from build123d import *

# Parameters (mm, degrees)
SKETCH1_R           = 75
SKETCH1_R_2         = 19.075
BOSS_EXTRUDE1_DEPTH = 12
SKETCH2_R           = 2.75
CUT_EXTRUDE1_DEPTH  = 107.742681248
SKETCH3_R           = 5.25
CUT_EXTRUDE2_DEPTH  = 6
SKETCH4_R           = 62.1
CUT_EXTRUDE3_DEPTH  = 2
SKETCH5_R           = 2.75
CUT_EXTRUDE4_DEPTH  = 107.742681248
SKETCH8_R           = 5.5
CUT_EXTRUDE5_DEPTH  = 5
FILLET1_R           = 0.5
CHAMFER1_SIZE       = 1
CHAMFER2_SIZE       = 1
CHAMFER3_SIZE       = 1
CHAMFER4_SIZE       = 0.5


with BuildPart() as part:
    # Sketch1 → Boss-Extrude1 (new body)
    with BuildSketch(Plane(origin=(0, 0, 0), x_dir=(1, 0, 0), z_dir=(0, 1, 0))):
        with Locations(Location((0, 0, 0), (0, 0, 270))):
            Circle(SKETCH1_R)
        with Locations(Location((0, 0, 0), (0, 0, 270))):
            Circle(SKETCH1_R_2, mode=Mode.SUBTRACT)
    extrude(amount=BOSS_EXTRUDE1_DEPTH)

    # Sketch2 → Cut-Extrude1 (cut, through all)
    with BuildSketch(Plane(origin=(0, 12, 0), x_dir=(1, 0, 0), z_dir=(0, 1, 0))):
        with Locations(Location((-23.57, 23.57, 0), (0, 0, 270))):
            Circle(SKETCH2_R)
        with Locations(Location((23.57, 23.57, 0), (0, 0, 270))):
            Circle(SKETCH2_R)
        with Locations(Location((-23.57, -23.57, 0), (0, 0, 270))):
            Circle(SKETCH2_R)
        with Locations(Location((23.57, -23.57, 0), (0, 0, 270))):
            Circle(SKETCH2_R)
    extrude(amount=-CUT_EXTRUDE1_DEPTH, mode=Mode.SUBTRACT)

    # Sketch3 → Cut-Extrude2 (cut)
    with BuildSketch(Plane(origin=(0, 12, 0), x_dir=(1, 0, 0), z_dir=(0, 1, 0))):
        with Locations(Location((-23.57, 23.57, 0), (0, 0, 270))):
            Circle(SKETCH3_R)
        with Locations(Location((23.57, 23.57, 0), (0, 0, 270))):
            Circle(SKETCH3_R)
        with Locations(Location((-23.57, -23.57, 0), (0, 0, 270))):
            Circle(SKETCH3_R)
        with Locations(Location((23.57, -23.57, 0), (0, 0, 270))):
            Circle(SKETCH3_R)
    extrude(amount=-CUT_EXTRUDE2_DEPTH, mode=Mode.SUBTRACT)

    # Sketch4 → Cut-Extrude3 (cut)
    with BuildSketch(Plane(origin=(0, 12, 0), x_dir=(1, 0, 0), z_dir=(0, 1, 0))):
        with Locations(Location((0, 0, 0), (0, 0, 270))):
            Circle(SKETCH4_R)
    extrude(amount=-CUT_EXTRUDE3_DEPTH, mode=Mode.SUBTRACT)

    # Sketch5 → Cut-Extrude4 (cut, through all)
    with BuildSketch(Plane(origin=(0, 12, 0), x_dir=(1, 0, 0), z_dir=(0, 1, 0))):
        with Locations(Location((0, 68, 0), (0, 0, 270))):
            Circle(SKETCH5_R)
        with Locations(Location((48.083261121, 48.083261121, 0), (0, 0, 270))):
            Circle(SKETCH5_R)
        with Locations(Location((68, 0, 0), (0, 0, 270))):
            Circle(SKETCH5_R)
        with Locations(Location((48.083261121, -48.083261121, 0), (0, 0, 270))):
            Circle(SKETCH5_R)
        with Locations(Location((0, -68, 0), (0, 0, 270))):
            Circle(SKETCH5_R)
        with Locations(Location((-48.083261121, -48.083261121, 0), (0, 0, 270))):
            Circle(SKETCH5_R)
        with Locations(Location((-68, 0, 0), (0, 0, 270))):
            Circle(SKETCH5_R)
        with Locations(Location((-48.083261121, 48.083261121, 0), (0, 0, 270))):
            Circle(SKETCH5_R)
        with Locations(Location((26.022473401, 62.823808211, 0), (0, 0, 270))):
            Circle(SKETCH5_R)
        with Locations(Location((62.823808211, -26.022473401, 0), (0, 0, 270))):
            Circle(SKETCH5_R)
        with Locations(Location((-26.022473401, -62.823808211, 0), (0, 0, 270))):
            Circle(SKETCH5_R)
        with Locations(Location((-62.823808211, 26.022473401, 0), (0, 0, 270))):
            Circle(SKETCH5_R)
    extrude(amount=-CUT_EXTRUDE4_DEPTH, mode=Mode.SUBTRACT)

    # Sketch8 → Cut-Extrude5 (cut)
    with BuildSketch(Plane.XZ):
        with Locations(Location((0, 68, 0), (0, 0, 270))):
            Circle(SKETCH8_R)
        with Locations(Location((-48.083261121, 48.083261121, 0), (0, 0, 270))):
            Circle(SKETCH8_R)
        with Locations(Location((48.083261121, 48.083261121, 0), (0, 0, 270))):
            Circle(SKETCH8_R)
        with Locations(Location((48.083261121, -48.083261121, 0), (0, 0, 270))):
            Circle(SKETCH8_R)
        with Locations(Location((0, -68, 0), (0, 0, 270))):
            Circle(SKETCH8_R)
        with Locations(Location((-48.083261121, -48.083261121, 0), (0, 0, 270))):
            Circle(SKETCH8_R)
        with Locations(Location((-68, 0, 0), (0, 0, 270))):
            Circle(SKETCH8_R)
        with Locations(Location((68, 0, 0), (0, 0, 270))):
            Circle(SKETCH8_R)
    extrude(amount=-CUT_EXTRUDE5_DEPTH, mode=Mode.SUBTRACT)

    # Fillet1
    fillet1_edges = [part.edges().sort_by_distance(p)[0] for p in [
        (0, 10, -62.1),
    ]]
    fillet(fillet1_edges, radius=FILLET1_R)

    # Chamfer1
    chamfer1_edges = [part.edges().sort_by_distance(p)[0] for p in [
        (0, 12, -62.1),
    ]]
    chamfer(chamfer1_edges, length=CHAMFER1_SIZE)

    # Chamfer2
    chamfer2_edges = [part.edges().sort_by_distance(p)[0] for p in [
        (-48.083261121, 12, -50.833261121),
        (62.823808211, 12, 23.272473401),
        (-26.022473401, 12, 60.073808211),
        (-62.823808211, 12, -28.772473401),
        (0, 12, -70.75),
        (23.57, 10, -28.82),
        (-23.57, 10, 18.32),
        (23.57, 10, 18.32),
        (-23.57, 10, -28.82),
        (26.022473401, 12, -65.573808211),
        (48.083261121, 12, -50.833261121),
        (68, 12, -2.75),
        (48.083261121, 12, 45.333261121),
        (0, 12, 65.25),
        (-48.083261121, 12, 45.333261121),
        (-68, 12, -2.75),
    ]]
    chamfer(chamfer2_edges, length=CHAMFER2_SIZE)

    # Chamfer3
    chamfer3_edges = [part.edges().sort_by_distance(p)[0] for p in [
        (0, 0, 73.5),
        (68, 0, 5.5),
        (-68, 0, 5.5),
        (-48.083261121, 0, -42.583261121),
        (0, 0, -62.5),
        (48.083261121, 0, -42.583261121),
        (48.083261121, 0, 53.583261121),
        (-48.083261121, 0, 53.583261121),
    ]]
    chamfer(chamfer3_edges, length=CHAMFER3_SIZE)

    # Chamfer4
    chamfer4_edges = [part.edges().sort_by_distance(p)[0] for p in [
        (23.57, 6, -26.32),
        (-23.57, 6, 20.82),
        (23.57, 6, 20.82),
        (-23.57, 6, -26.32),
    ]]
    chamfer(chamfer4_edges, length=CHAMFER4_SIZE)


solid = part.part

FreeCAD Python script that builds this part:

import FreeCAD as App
import Part
import Sketcher
from FreeCAD import Vector


def edges_at(feature, points):
    """Names of the edges that pass closest to the given points."""
    edges = feature.Shape.Edges
    near = lambda p: min(range(len(edges)), key=lambda i: edges[i].distToShape(Part.Vertex(*p))[0])
    return sorted({f"Edge{near(p) + 1}" for p in points})

doc = App.newDocument("Part")
body = doc.addObject("PartDesign::Body", "Body")

# Sketch on XZ plane
sketch1 = body.newObject("Sketcher::SketchObject", "Sketch")
sketch1.AttachmentSupport = (doc.getObject("XZ_Plane"), [""])
sketch1.MapMode = "FlatFace"
sketch1.addGeometry([
    Part.Circle(Vector(0, 0, 0), Vector(0, 0, 1), 75),
    Part.Circle(Vector(0, 0, 0), Vector(0, 0, 1), 19),
], False)
sketch1.addConstraint([
    Sketcher.Constraint("Coincident", 0, 3, -1, 1),
    Sketcher.Constraint("Coincident", 1, 3, -1, 1),
    Sketcher.Constraint("Diameter", 0, 150.0),
    Sketcher.Constraint("Diameter", 1, 38.15),
])
pad1 = body.newObject("PartDesign::Pad", "Pad")
pad1.Profile = sketch1
pad1.Length = 12
pad1.Reversed = True

# Sketch on XZ plane
sketch2 = body.newObject("Sketcher::SketchObject", "Sketch001")
sketch2.AttachmentSupport = (doc.getObject("XZ_Plane"), [""])
sketch2.MapMode = "FlatFace"
sketch2.AttachmentOffset = App.Placement(Vector(0, 0, -12), App.Rotation())
sketch2.addGeometry([
    Part.Circle(Vector(-23.6, -23.6, 0), Vector(0, 0, 1), 2.8),
    Part.Circle(Vector(23.6, -23.6, 0), Vector(0, 0, 1), 2.8),
    Part.Circle(Vector(-23.6, 23.6, 0), Vector(0, 0, 1), 2.8),
    Part.Circle(Vector(23.6, 23.6, 0), Vector(0, 0, 1), 2.8),
], False)
sketch2.addConstraint([
    Sketcher.Constraint("Equal", 0, 1),
    Sketcher.Constraint("Equal", 1, 2),
    Sketcher.Constraint("Equal", 2, 3),
    Sketcher.Constraint("Symmetric", 1, 3, 2, 3, -1, 1),
    Sketcher.Constraint("Symmetric", 0, 3, 3, 3, -1, 1),
    Sketcher.Constraint("Symmetric", 0, 3, 1, 3, -2),
    Sketcher.Constraint("Diameter", 0, 5.5),
    Sketcher.Constraint("DistanceX", 0, 3, -1, 1, 23.57),
    Sketcher.Constraint("DistanceY", 0, 3, -1, 1, 23.57),
])
pocket1 = body.newObject("PartDesign::Pocket", "Pocket")
pocket1.Profile = sketch2
pocket1.Type = "ThroughAll"
pocket1.Reversed = True

# Sketch on XZ plane
sketch3 = body.newObject("Sketcher::SketchObject", "Sketch002")
sketch3.AttachmentSupport = (doc.getObject("XZ_Plane"), [""])
sketch3.MapMode = "FlatFace"
sketch3.AttachmentOffset = App.Placement(Vector(0, 0, -12), App.Rotation())
sketch3.addGeometry([
    Part.Circle(Vector(-24, -24, 0), Vector(0, 0, 1), 5),
    Part.Circle(Vector(24, -24, 0), Vector(0, 0, 1), 5),
    Part.Circle(Vector(-24, 24, 0), Vector(0, 0, 1), 5),
    Part.Circle(Vector(24, 24, 0), Vector(0, 0, 1), 5),
], False)
sketch3.addConstraint([
    Sketcher.Constraint("Equal", 0, 1),
    Sketcher.Constraint("Equal", 1, 2),
    Sketcher.Constraint("Equal", 2, 3),
    Sketcher.Constraint("Symmetric", 1, 3, 2, 3, -1, 1),
    Sketcher.Constraint("Symmetric", 0, 3, 3, 3, -1, 1),
    Sketcher.Constraint("Symmetric", 0, 3, 1, 3, -2),
    Sketcher.Constraint("Diameter", 0, 10.5),
    Sketcher.Constraint("DistanceX", 0, 3, -1, 1, 23.57),
    Sketcher.Constraint("DistanceY", 0, 3, -1, 1, 23.57),
])
pocket2 = body.newObject("PartDesign::Pocket", "Pocket001")
pocket2.Profile = sketch3
pocket2.Length = 6
pocket2.Reversed = True

# Sketch on XZ plane
sketch4 = body.newObject("Sketcher::SketchObject", "Sketch003")
sketch4.AttachmentSupport = (doc.getObject("XZ_Plane"), [""])
sketch4.MapMode = "FlatFace"
sketch4.AttachmentOffset = App.Placement(Vector(0, 0, -12), App.Rotation())
sketch4.addGeometry(Part.Circle(Vector(0, 0, 0), Vector(0, 0, 1), 62), False)
sketch4.addConstraint([
    Sketcher.Constraint("Coincident", 0, 3, -1, 1),
    Sketcher.Constraint("Diameter", 0, 124.2),
])
pocket3 = body.newObject("PartDesign::Pocket", "Pocket002")
pocket3.Profile = sketch4
pocket3.Length = 2
pocket3.Reversed = True

# Sketch on XZ plane
sketch5 = body.newObject("Sketcher::SketchObject", "Sketch004")
sketch5.AttachmentSupport = (doc.getObject("XZ_Plane"), [""])
sketch5.MapMode = "FlatFace"
sketch5.AttachmentOffset = App.Placement(Vector(0, 0, -12), App.Rotation())
sketch5.addGeometry([
    Part.Circle(Vector(0, -68, 0), Vector(0, 0, 1), 2.8),  # 0
    Part.Circle(Vector(48.1, -48.1, 0), Vector(0, 0, 1), 2.8),  # 1
    Part.Circle(Vector(68, 0, 0), Vector(0, 0, 1), 2.8),  # 2
    Part.Circle(Vector(48.1, 48.1, 0), Vector(0, 0, 1), 2.8),  # 3
    Part.Circle(Vector(0, 68, 0), Vector(0, 0, 1), 2.8),  # 4
    Part.Circle(Vector(-48.1, 48.1, 0), Vector(0, 0, 1), 2.8),  # 5
    Part.Circle(Vector(-68, 0, 0), Vector(0, 0, 1), 2.8),  # 6
    Part.Circle(Vector(-48.1, -48.1, 0), Vector(0, 0, 1), 2.8),  # 7
    Part.Circle(Vector(26, -62.8, 0), Vector(0, 0, 1), 2.8),  # 8
    Part.Circle(Vector(62.8, 26, 0), Vector(0, 0, 1), 2.8),  # 9
    Part.Circle(Vector(-26, 62.8, 0), Vector(0, 0, 1), 2.8),  # 10
    Part.Circle(Vector(-62.8, -26, 0), Vector(0, 0, 1), 2.8),  # 11
], False)
sketch5.addConstraint([
    Sketcher.Constraint("Equal", 0, 1),
    Sketcher.Constraint("Equal", 1, 2),
    Sketcher.Constraint("Equal", 2, 3),
    Sketcher.Constraint("Equal", 3, 4),
    Sketcher.Constraint("Equal", 4, 5),
    Sketcher.Constraint("Equal", 5, 6),
    Sketcher.Constraint("Equal", 6, 7),
    Sketcher.Constraint("Equal", 7, 8),
    Sketcher.Constraint("Equal", 8, 9),
    Sketcher.Constraint("Equal", 9, 10),
    Sketcher.Constraint("Equal", 10, 11),
    Sketcher.Constraint("Symmetric", 0, 3, 4, 3, -1, 1),
    Sketcher.Constraint("Symmetric", 1, 3, 5, 3, -1, 1),
    Sketcher.Constraint("Symmetric", 2, 3, 6, 3, -1, 1),
    Sketcher.Constraint("Symmetric", 3, 3, 7, 3, -1, 1),
    Sketcher.Constraint("Symmetric", 8, 3, 10, 3, -1, 1),
    Sketcher.Constraint("Symmetric", 9, 3, 11, 3, -1, 1),
    Sketcher.Constraint("Symmetric", 3, 3, 5, 3, -2),
    Sketcher.Constraint("PointOnObject", 0, 3, -2),
    Sketcher.Constraint("PointOnObject", 2, 3, -1),
    Sketcher.Constraint("Diameter", 0, 5.5),
    Sketcher.Constraint("DistanceY", 0, 3, -1, 1, 68.0),
    Sketcher.Constraint("DistanceX", -1, 1, 2, 3, 68.0),
    Sketcher.Constraint("DistanceX", -1, 1, 1, 3, 48.083261),
    Sketcher.Constraint("DistanceY", 1, 3, -1, 1, 48.083261),
    Sketcher.Constraint("DistanceY", 8, 3, -1, 1, 62.823808),
    Sketcher.Constraint("DistanceX", -1, 1, 9, 3, 62.823808),
    Sketcher.Constraint("DistanceY", 8, 3, 9, 3, 88.846282),
    Sketcher.Constraint("DistanceX", 10, 3, 9, 3, 88.846282),
])
pocket4 = body.newObject("PartDesign::Pocket", "Pocket003")
pocket4.Profile = sketch5
pocket4.Type = "ThroughAll"
pocket4.Reversed = True

# Sketch on XZ plane
sketch6 = body.newObject("Sketcher::SketchObject", "Sketch005")
sketch6.AttachmentSupport = (doc.getObject("XZ_Plane"), [""])
sketch6.MapMode = "FlatFace"
sketch6.addGeometry([
    Part.Circle(Vector(0, 68, 0), Vector(0, 0, 1), 6),  # 0
    Part.Circle(Vector(-48, 48, 0), Vector(0, 0, 1), 6),  # 1
    Part.Circle(Vector(48, 48, 0), Vector(0, 0, 1), 6),  # 2
    Part.Circle(Vector(48, -48, 0), Vector(0, 0, 1), 6),  # 3
    Part.Circle(Vector(0, -68, 0), Vector(0, 0, 1), 6),  # 4
    Part.Circle(Vector(-48, -48, 0), Vector(0, 0, 1), 6),  # 5
    Part.Circle(Vector(-68, 0, 0), Vector(0, 0, 1), 6),  # 6
    Part.Circle(Vector(68, 0, 0), Vector(0, 0, 1), 6),  # 7
], False)
sketch6.addConstraint([
    Sketcher.Constraint("Equal", 0, 1),
    Sketcher.Constraint("Equal", 1, 2),
    Sketcher.Constraint("Equal", 2, 3),
    Sketcher.Constraint("Equal", 3, 4),
    Sketcher.Constraint("Equal", 4, 5),
    Sketcher.Constraint("Equal", 5, 6),
    Sketcher.Constraint("Equal", 6, 7),
    Sketcher.Constraint("Symmetric", 1, 3, 3, 3, -1, 1),
    Sketcher.Constraint("Symmetric", 0, 3, 4, 3, -1, 1),
    Sketcher.Constraint("Symmetric", 2, 3, 5, 3, -1, 1),
    Sketcher.Constraint("Symmetric", 6, 3, 7, 3, -1, 1),
    Sketcher.Constraint("Symmetric", 1, 3, 2, 3, -2),
    Sketcher.Constraint("PointOnObject", 0, 3, -2),
    Sketcher.Constraint("PointOnObject", 6, 3, -1),
    Sketcher.Constraint("Diameter", 0, 11.0),
    Sketcher.Constraint("DistanceY", -1, 1, 0, 3, 68.0),
    Sketcher.Constraint("DistanceX", 6, 3, -1, 1, 68.0),
    Sketcher.Constraint("DistanceX", 1, 3, -1, 1, 48.083261),
    Sketcher.Constraint("DistanceY", -1, 1, 1, 3, 48.083261),
])
pocket5 = body.newObject("PartDesign::Pocket", "Pocket004")
pocket5.Profile = sketch6
pocket5.Length = 5
doc.recompute()

fillet = body.newObject("PartDesign::Fillet", "Fillet")
fillet.Base = (pocket5, edges_at(pocket5, [(0, 10, -62.1)]))
fillet.Radius = 0.5
doc.recompute()

chamfer = body.newObject("PartDesign::Chamfer", "Chamfer")
chamfer.Base = (fillet, edges_at(fillet, [(0, 12, -62.1)]))
chamfer.Size = 1
doc.recompute()

chamfer2 = body.newObject("PartDesign::Chamfer", "Chamfer001")
chamfer2.Base = (chamfer, edges_at(chamfer, [
    (-48.083, 12, -50.833),
    (62.824, 12, 23.272),
    (-26.022, 12, 60.074),
    (-62.824, 12, -28.772),
    (0, 12, -70.75),
    (23.57, 10, -28.82),
    (-23.57, 10, 18.32),
    (23.57, 10, 18.32),
    (-23.57, 10, -28.82),
    (26.022, 12, -65.574),
    (48.083, 12, -50.833),
    (68, 12, -2.75),
    (48.083, 12, 45.333),
    (0, 12, 65.25),
    (-48.083, 12, 45.333),
    (-68, 12, -2.75),
]))
chamfer2.Size = 1
doc.recompute()

chamfer3 = body.newObject("PartDesign::Chamfer", "Chamfer002")
chamfer3.Base = (chamfer2, edges_at(chamfer2, [
    (0, 0, 73.5),
    (68, 0, 5.5),
    (-68, 0, 5.5),
    (-48.083, 0, -42.583),
    (0, 0, -62.5),
    (48.083, 0, -42.583),
    (48.083, 0, 53.583),
    (-48.083, 0, 53.583),
]))
chamfer3.Size = 1
doc.recompute()

chamfer4 = body.newObject("PartDesign::Chamfer", "Chamfer003")
chamfer4.Base = (chamfer3, edges_at(chamfer3, [
    (23.57, 6, -26.32),
    (-23.57, 6, 20.82),
    (23.57, 6, 20.82),
    (-23.57, 6, -26.32),
]))
chamfer4.Size = 0.5

doc.recompute()
